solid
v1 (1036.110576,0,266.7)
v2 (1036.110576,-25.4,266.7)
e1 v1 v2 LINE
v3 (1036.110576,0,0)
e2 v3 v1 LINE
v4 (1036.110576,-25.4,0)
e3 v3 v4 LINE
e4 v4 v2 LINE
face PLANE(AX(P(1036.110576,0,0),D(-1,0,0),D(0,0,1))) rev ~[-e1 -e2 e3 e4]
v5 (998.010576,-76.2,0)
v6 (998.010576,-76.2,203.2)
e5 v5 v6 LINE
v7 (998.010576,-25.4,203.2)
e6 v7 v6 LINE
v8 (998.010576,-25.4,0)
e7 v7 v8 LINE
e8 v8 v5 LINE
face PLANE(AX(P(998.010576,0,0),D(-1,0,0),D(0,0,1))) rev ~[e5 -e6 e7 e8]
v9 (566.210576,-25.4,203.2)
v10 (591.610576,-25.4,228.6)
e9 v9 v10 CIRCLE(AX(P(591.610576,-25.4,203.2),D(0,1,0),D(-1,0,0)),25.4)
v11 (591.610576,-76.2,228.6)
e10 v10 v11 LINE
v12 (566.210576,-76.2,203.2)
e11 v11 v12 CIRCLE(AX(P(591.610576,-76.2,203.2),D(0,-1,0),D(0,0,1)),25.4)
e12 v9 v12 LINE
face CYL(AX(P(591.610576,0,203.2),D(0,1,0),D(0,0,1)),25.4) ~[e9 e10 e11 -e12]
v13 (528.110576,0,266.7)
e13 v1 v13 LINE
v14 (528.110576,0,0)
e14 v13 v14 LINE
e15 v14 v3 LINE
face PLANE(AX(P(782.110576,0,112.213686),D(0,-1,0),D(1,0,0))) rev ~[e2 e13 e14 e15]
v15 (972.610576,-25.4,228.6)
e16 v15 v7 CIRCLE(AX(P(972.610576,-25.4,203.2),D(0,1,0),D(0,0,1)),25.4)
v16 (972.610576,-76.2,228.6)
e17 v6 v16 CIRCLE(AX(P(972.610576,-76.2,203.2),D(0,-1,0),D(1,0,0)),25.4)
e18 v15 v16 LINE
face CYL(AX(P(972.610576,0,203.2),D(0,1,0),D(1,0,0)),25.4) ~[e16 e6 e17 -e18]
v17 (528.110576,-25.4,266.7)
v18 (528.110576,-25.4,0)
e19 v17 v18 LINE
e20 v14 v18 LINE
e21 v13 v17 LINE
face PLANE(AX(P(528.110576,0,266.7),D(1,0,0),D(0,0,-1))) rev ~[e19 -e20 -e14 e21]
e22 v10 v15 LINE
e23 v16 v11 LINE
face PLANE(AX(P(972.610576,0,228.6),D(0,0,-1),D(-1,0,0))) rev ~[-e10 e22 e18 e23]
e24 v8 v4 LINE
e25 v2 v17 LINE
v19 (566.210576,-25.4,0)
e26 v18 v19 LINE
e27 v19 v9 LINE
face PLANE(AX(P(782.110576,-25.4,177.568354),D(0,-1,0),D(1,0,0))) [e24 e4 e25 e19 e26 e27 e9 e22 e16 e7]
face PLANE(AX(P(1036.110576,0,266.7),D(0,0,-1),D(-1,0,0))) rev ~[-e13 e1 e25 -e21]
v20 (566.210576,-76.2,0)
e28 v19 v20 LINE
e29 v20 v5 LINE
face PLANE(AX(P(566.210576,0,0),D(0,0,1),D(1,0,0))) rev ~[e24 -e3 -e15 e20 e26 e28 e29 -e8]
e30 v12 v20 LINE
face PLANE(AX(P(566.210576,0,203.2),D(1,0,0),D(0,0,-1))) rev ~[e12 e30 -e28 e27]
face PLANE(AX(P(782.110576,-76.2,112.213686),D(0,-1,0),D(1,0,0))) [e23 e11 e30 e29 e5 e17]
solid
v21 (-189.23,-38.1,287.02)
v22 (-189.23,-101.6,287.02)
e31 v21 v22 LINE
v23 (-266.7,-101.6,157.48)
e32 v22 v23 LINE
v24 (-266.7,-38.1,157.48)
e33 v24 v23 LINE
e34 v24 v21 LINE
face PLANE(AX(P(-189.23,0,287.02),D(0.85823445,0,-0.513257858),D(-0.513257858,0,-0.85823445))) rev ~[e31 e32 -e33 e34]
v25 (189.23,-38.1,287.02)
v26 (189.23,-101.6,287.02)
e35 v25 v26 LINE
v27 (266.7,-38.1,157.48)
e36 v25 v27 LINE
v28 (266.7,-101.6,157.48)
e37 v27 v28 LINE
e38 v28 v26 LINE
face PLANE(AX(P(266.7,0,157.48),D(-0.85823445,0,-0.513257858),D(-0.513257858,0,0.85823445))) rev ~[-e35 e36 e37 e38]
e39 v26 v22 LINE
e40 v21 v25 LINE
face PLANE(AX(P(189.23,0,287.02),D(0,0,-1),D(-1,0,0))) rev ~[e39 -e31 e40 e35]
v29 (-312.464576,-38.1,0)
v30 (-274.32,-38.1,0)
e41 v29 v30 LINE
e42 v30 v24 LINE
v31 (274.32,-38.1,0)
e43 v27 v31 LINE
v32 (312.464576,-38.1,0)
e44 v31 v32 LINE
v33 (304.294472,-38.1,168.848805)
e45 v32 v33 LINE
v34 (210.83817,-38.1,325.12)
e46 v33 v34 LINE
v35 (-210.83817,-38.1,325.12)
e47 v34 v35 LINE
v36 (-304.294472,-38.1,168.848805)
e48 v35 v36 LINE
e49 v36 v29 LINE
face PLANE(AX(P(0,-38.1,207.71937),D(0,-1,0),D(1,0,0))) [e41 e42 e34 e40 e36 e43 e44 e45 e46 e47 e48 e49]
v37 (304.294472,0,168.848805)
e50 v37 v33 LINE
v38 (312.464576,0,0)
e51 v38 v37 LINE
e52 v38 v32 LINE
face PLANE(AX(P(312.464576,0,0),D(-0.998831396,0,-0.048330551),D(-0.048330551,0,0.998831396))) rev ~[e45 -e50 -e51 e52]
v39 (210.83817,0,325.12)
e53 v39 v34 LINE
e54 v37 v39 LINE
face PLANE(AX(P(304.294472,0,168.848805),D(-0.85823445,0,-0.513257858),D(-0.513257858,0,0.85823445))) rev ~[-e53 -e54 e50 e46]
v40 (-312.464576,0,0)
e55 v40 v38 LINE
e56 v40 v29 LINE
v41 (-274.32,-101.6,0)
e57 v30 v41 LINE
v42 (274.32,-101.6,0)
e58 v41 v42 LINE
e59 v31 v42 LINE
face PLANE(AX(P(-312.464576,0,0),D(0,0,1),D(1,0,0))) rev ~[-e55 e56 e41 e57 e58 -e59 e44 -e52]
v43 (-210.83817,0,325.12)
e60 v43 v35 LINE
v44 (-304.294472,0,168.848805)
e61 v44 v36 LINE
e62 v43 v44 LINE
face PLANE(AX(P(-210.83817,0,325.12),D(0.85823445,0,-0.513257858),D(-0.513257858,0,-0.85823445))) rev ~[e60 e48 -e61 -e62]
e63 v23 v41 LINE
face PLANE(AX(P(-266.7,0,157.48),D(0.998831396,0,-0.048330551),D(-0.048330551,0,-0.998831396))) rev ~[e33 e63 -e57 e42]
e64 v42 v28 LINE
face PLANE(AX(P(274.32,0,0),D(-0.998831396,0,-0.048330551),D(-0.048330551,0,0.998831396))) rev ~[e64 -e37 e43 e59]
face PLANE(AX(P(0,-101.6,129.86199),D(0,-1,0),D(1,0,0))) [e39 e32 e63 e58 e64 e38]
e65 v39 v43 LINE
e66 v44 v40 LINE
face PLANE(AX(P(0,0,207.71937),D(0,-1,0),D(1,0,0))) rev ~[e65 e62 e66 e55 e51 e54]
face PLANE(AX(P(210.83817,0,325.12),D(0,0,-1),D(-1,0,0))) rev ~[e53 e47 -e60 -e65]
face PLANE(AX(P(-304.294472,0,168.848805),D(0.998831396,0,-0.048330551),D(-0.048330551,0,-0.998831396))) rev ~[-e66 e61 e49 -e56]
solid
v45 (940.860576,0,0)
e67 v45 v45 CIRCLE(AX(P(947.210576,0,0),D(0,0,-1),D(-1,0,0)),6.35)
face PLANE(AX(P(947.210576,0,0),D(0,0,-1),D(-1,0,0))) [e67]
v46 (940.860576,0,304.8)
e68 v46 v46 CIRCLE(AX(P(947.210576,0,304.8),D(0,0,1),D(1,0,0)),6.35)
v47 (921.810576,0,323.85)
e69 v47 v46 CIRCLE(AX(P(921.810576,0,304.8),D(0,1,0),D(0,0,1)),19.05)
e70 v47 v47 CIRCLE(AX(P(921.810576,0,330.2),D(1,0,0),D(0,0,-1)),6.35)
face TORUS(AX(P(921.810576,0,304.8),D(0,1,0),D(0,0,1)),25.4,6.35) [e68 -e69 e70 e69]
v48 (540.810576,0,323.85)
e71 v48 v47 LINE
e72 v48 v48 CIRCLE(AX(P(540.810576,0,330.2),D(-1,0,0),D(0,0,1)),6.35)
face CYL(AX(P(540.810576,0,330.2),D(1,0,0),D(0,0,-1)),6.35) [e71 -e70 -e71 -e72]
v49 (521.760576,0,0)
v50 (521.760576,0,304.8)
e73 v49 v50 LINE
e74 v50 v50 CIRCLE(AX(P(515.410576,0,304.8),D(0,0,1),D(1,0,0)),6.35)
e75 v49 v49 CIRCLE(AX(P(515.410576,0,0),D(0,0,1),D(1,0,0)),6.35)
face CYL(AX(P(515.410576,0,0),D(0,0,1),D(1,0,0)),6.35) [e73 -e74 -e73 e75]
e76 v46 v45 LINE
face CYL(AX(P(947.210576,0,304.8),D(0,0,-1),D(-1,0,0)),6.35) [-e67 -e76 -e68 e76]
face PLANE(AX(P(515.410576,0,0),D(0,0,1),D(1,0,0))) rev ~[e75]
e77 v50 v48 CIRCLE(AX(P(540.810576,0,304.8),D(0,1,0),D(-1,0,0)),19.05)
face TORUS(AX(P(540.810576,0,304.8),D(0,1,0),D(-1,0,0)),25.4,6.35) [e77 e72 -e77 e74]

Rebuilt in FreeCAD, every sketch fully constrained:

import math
import FreeCAD as App
import Part
import Sketcher

V = App.Vector
Q = App.Units.Quantity

doc = App.newDocument("Part")
params = doc.addObject("Spreadsheet::Sheet", "Params")
for row, (alias, value) in enumerate([
    ("sketch1_width", "21.6 in"),
    ("sketch1_width2", "14.9 in"),
    ("pad1_length", "4 in"),
    ("sketch2_width", "14.9 in"),
    ("pad2_length", "1.5 in"),
    ("sketch3_radius", "1 in"),
    ("sketch3_width", "15 in"),
    ("sketch3_width2", "20 in"),
    ("sketch3_height", "8 in"),
    ("sketch3_height2", "10.5 in"),
    ("pad3_length", "1 in"),
    ("sketch4_radius", "1 in"),
    ("sketch4_width", "17 in"),
    ("sketch4_height", "8 in"),
    ("pad4_length", "3 in"),
    ("sketch5_diameter", "0.5 in"),
    ("sketch6_radius", "1 in"),
    ("sketch6_width", "15 in"),
    ("sketch6_height", "12 in"),
], start=1):
    params.set(f"A{row}", alias)
    params.set(f"B{row}", "=" + value)
    params.setAlias(f"B{row}", alias)

body = doc.addObject("PartDesign::Body", "Body")

sketch1 = body.newObject("Sketcher::SketchObject", "Sketch")
sketch1.AttachmentSupport = (doc.getObject("XZ_Plane"), [""])
sketch1.MapMode = "FlatFace"
sketch1.addGeometry(Part.LineSegment(V(-267, 157, 0), V(-274, 0, 0)), False)
sketch1.addGeometry(Part.LineSegment(V(-274, 0, 0), V(274, 0, 0)), False)
sketch1.addGeometry(Part.LineSegment(V(274, 0, 0), V(267, 157, 0)), False)
sketch1.addGeometry(Part.LineSegment(V(267, 157, 0), V(189, 287, 0)), False)
sketch1.addGeometry(Part.LineSegment(V(189, 287, 0), V(-189, 287, 0)), False)
sketch1.addGeometry(Part.LineSegment(V(-189, 287, 0), V(-267, 157, 0)), False)
sketch1.addConstraint(Sketcher.Constraint("Coincident", 0, 2, 1, 1))
sketch1.addConstraint(Sketcher.Constraint("Coincident", 1, 2, 2, 1))
sketch1.addConstraint(Sketcher.Constraint("Coincident", 2, 2, 3, 1))
sketch1.addConstraint(Sketcher.Constraint("Coincident", 3, 2, 4, 1))
sketch1.addConstraint(Sketcher.Constraint("Coincident", 4, 2, 5, 1))
sketch1.addConstraint(Sketcher.Constraint("Coincident", 5, 2, 0, 1))
sketch1.addConstraint(Sketcher.Constraint("Horizontal", 1))
sketch1.addConstraint(Sketcher.Constraint("Horizontal", 4))
sketch1.addConstraint(Sketcher.Constraint("Symmetric", 0, 2, 1, 2, -1, 1))
sketch1.addConstraint(Sketcher.Constraint("Symmetric", 2, 2, 5, 2, -2))
sketch1.addConstraint(Sketcher.Constraint("Equal", 3, 5))
sketch1.addConstraint(Sketcher.Constraint("DistanceX", 1, 1, 1, 2, Q("21.6 in")))
sketch1.addConstraint(Sketcher.Constraint("DistanceX", 4, 2, 4, 1, Q("14.9 in")))
sketch1.addConstraint(Sketcher.Constraint("DistanceX", 5, 2, 2, 2, Q("21 in")))
sketch1.addConstraint(Sketcher.Constraint("DistanceY", -1, 1, 2, 2, Q("6.2 in")))
sketch1.addConstraint(Sketcher.Constraint("DistanceY", -1, 1, 3, 2, Q("11.3 in")))
sketch1.setExpression("Constraints[11]", "Params.sketch1_width")
sketch1.setExpression("Constraints[12]", "Params.sketch1_width2")
pad1 = body.newObject("PartDesign::Pad", "Pad")
pad1.Profile = sketch1
pad1.setExpression("Length", "Params.pad1_length")

sketch2 = body.newObject("Sketcher::SketchObject", "Sketch001")
sketch2.AttachmentSupport = (doc.getObject("XZ_Plane"), [""])
sketch2.MapMode = "FlatFace"
sketch2.addGeometry(Part.LineSegment(V(-312, 0, 0), V(-274, 0, 0)), False)
sketch2.addGeometry(Part.LineSegment(V(-274, 0, 0), V(-267, 157, 0)), False)
sketch2.addGeometry(Part.LineSegment(V(-267, 157, 0), V(-189, 287, 0)), False)
sketch2.addGeometry(Part.LineSegment(V(-189, 287, 0), V(189, 287, 0)), False)
sketch2.addGeometry(Part.LineSegment(V(189, 287, 0), V(267, 157, 0)), False)
sketch2.addGeometry(Part.LineSegment(V(267, 157, 0), V(274, 0, 0)), False)
sketch2.addGeometry(Part.LineSegment(V(274, 0, 0), V(312, 0, 0)), False)
sketch2.addGeometry(Part.LineSegment(V(312, 0, 0), V(304, 169, 0)), False)
sketch2.addGeometry(Part.LineSegment(V(304, 169, 0), V(211, 325, 0)), False)
sketch2.addGeometry(Part.LineSegment(V(211, 325, 0), V(-211, 325, 0)), False)
sketch2.addGeometry(Part.LineSegment(V(-211, 325, 0), V(-304, 169, 0)), False)
sketch2.addGeometry(Part.LineSegment(V(-304, 169, 0), V(-312, 0, 0)), False)
sketch2.addConstraint(Sketcher.Constraint("Coincident", 0, 2, 1, 1))
sketch2.addConstraint(Sketcher.Constraint("Coincident", 1, 2, 2, 1))
sketch2.addConstraint(Sketcher.Constraint("Coincident", 2, 2, 3, 1))
sketch2.addConstraint(Sketcher.Constraint("Coincident", 3, 2, 4, 1))
sketch2.addConstraint(Sketcher.Constraint("Coincident", 4, 2, 5, 1))
sketch2.addConstraint(Sketcher.Constraint("Coincident", 5, 2, 6, 1))
sketch2.addConstraint(Sketcher.Constraint("Coincident", 6, 2, 7, 1))
sketch2.addConstraint(Sketcher.Constraint("Coincident", 7, 2, 8, 1))
sketch2.addConstraint(Sketcher.Constraint("Coincident", 8, 2, 9, 1))
sketch2.addConstraint(Sketcher.Constraint("Coincident", 9, 2, 10, 1))
sketch2.addConstraint(Sketcher.Constraint("Coincident", 10, 2, 11, 1))
sketch2.addConstraint(Sketcher.Constraint("Coincident", 11, 2, 0, 1))
sketch2.addConstraint(Sketcher.Constraint("Horizontal", 0))
sketch2.addConstraint(Sketcher.Constraint("Horizontal", 3))
sketch2.addConstraint(Sketcher.Constraint("Horizontal", 6))
sketch2.addConstraint(Sketcher.Constraint("Horizontal", 9))
sketch2.addConstraint(Sketcher.Constraint("Symmetric", 0, 2, 5, 2, -1, 1))
sketch2.addConstraint(Sketcher.Constraint("Symmetric", 1, 2, 4, 2, -2))
sketch2.addConstraint(Sketcher.Constraint("Symmetric", 7, 2, 10, 2, -2))
sketch2.addConstraint(Sketcher.Constraint("Symmetric", 6, 2, 11, 2, -2))
sketch2.addConstraint(Sketcher.Constraint("Parallel", 5, 7))
sketch2.addConstraint(Sketcher.Constraint("Parallel", 4, 8))
sketch2.addConstraint(Sketcher.Constraint("Parallel", 2, 10))
sketch2.addConstraint(Sketcher.Constraint("Equal", 2, 4))
sketch2.addConstraint(Sketcher.Constraint("DistanceX", 3, 1, 3, 2, Q("14.9 in")))
sketch2.addConstraint(Sketcher.Constraint("DistanceX", 1, 2, 4, 2, Q("21 in")))
sketch2.addConstraint(Sketcher.Constraint("DistanceX", 0, 2, -1, 1, Q("10.8 in")))
sketch2.addConstraint(Sketcher.Constraint("DistanceY", -1, 1, 1, 2, Q("6.2 in")))
sketch2.addConstraint(Sketcher.Constraint("DistanceY", -1, 1, 2, 2, Q("11.3 in")))
sketch2.addConstraint(Sketcher.Constraint("DistanceY", -1, 1, 8, 2, Q("12.8 in")))
sketch2.addConstraint(Sketcher.Constraint("DistanceX", 9, 2, 9, 1, 421.676339))
sketch2.addConstraint(Sketcher.Constraint("DistanceX", 0, 1, 0, 2, 38.144576))
sketch2.setExpression("Constraints[24]", "Params.sketch2_width")
pad2 = body.newObject("PartDesign::Pad", "Pad001")
pad2.Profile = sketch2
pad2.setExpression("Length", "Params.pad2_length")
body2 = doc.addObject("PartDesign::Body", "Body001")

sketch3 = body2.newObject("Sketcher::SketchObject", "Sketch002")
sketch3.AttachmentSupport = (doc.getObject("XZ_Plane001"), [""])
sketch3.MapMode = "FlatFace"
sketch3.addGeometry(Part.LineSegment(V(528, 0, 0), V(566, 0, 0)), False)
sketch3.addGeometry(Part.LineSegment(V(566, 0, 0), V(566, 203, 0)), False)
sketch3.addGeometry(Part.ArcOfCircle(Part.Circle(V(592, 203, 0), V(0, 0, 1), 25), math.radians(90), math.radians(180)), False)
sketch3.addGeometry(Part.LineSegment(V(592, 229, 0), V(973, 229, 0)), False)
sketch3.addGeometry(Part.ArcOfCircle(Part.Circle(V(973, 203, 0), V(0, 0, 1), 25), math.radians(0), math.radians(90)), False)
sketch3.addGeometry(Part.LineSegment(V(998, 203, 0), V(998, 0, 0)), False)
sketch3.addGeometry(Part.LineSegment(V(998, 0, 0), V(1036, 0, 0)), False)
sketch3.addGeometry(Part.LineSegment(V(1036, 0, 0), V(1036, 267, 0)), False)
sketch3.addGeometry(Part.LineSegment(V(1036, 267, 0), V(528, 267, 0)), False)
sketch3.addGeometry(Part.LineSegment(V(528, 267, 0), V(528, 0, 0)), False)
sketch3.addConstraint(Sketcher.Constraint("Coincident", 0, 2, 1, 1))
sketch3.addConstraint(Sketcher.Constraint("Tangent", 1, 2, 2, 2))
sketch3.addConstraint(Sketcher.Constraint("Tangent", 2, 1, 3, 1))
sketch3.addConstraint(Sketcher.Constraint("Tangent", 3, 2, 4, 2))
sketch3.addConstraint(Sketcher.Constraint("Tangent", 4, 1, 5, 1))
sketch3.addConstraint(Sketcher.Constraint("Coincident", 5, 2, 6, 1))
sketch3.addConstraint(Sketcher.Constraint("Coincident", 6, 2, 7, 1))
sketch3.addConstraint(Sketcher.Constraint("Coincident", 7, 2, 8, 1))
sketch3.addConstraint(Sketcher.Constraint("Coincident", 8, 2, 9, 1))
sketch3.addConstraint(Sketcher.Constraint("Coincident", 9, 2, 0, 1))
sketch3.addConstraint(Sketcher.Constraint("Horizontal", 0))
sketch3.addConstraint(Sketcher.Constraint("Vertical", 1))
sketch3.addConstraint(Sketcher.Constraint("Horizontal", 3))
sketch3.addConstraint(Sketcher.Constraint("Vertical", 5))
sketch3.addConstraint(Sketcher.Constraint("Horizontal", 6))
sketch3.addConstraint(Sketcher.Constraint("Vertical", 7))
sketch3.addConstraint(Sketcher.Constraint("Horizontal", 8))
sketch3.addConstraint(Sketcher.Constraint("Vertical", 9))
sketch3.addConstraint(Sketcher.Constraint("Equal", 2, 4))
sketch3.addConstraint(Sketcher.Constraint("PointOnObject", 0, 2, -1))
sketch3.addConstraint(Sketcher.Constraint("PointOnObject", 5, 2, -1))
sketch3.addConstraint(Sketcher.Constraint("Equal", 0, 6))
sketch3.addConstraint(Sketcher.Constraint("Radius", 2, Q("1 in")))
sketch3.addConstraint(Sketcher.Constraint("DistanceX", 3, 1, 3, 2, Q("15 in")))
sketch3.addConstraint(Sketcher.Constraint("DistanceX", 8, 2, 8, 1, Q("20 in")))
sketch3.addConstraint(Sketcher.Constraint("DistanceY", 1, 1, 1, 2, Q("8 in")))
sketch3.addConstraint(Sketcher.Constraint("DistanceY", 7, 1, 7, 2, Q("10.5 in")))
sketch3.addConstraint(Sketcher.Constraint("DistanceX", -1, 1, 2, 3, 591.610576))
sketch3.setExpression("Constraints[22]", "Params.sketch3_radius")
sketch3.setExpression("Constraints[23]", "Params.sketch3_width")
sketch3.setExpression("Constraints[24]", "Params.sketch3_width2")
sketch3.setExpression("Constraints[25]", "Params.sketch3_height")
sketch3.setExpression("Constraints[26]", "Params.sketch3_height2")
pad3 = body2.newObject("PartDesign::Pad", "Pad002")
pad3.Profile = sketch3
pad3.setExpression("Length", "Params.pad3_length")

sketch4 = body2.newObject("Sketcher::SketchObject", "Sketch003")
sketch4.AttachmentSupport = (doc.getObject("XZ_Plane001"), [""])
sketch4.MapMode = "FlatFace"
sketch4.addGeometry(Part.LineSegment(V(566, 203, 0), V(566, 0, 0)), False)
sketch4.addGeometry(Part.LineSegment(V(566, 0, 0), V(998, 0, 0)), False)
sketch4.addGeometry(Part.LineSegment(V(998, 0, 0), V(998, 203, 0)), False)
sketch4.addGeometry(Part.ArcOfCircle(Part.Circle(V(973, 203, 0), V(0, 0, 1), 25), math.radians(0), math.radians(90)), False)
sketch4.addGeometry(Part.LineSegment(V(973, 229, 0), V(592, 229, 0)), False)
sketch4.addGeometry(Part.ArcOfCircle(Part.Circle(V(592, 203, 0), V(0, 0, 1), 25), math.radians(90), math.radians(180)), False)
sketch4.addConstraint(Sketcher.Constraint("Coincident", 0, 2, 1, 1))
sketch4.addConstraint(Sketcher.Constraint("Coincident", 1, 2, 2, 1))
sketch4.addConstraint(Sketcher.Constraint("Tangent", 2, 2, 3, 1))
sketch4.addConstraint(Sketcher.Constraint("Tangent", 3, 2, 4, 1))
sketch4.addConstraint(Sketcher.Constraint("Tangent", 4, 2, 5, 1))
sketch4.addConstraint(Sketcher.Constraint("Tangent", 5, 2, 0, 1))
sketch4.addConstraint(Sketcher.Constraint("Vertical", 0))
sketch4.addConstraint(Sketcher.Constraint("Horizontal", 1))
sketch4.addConstraint(Sketcher.Constraint("Vertical", 2))
sketch4.addConstraint(Sketcher.Constraint("Horizontal", 4))
sketch4.addConstraint(Sketcher.Constraint("Equal", 3, 5))
sketch4.addConstraint(Sketcher.Constraint("PointOnObject", 0, 2, -1))
sketch4.addConstraint(Sketcher.Constraint("Radius", 3, Q("1 in")))
sketch4.addConstraint(Sketcher.Constraint("DistanceX", 1, 1, 1, 2, Q("17 in")))
sketch4.addConstraint(Sketcher.Constraint("DistanceY", 0, 2, 0, 1, Q("8 in")))
sketch4.addConstraint(Sketcher.Constraint("DistanceX", -1, 1, 3, 3, 972.610576))
sketch4.setExpression("Constraints[12]", "Params.sketch4_radius")
sketch4.setExpression("Constraints[13]", "Params.sketch4_width")
sketch4.setExpression("Constraints[14]", "Params.sketch4_height")
pad4 = body2.newObject("PartDesign::Pad", "Pad003")
pad4.Profile = sketch4
pad4.setExpression("Length", "Params.pad4_length")
body3 = doc.addObject("PartDesign::Body", "Body002")

sketch5 = body3.newObject("Sketcher::SketchObject", "Sketch004")
sketch5.AttachmentSupport = (doc.getObject("XY_Plane002"), [""])
sketch5.MapMode = "FlatFace"
sketch5.addGeometry(Part.Circle(V(515, 0, 0), V(0, 0, 1), 6), False)
sketch5.addConstraint(Sketcher.Constraint("PointOnObject", 0, 3, -1))
sketch5.addConstraint(Sketcher.Constraint("Diameter", 0, Q("0.5 in")))
sketch5.addConstraint(Sketcher.Constraint("DistanceX", -1, 1, 0, 3, 515.410576))
sketch5.setExpression("Constraints[1]", "Params.sketch5_diameter")

sketch6 = body3.newObject("Sketcher::SketchObject", "Sketch005")
sketch6.AttachmentSupport = (doc.getObject("XZ_Plane002"), [""])
sketch6.MapMode = "FlatFace"
sketch6.addGeometry(Part.LineSegment(V(515, 0, 0), V(515, 305, 0)), False)
sketch6.addGeometry(Part.ArcOfCircle(Part.Circle(V(541, 305, 0), V(0, 0, 1), 25), math.radians(90), math.radians(180)), False)
sketch6.addGeometry(Part.LineSegment(V(541, 330, 0), V(922, 330, 0)), False)
sketch6.addGeometry(Part.ArcOfCircle(Part.Circle(V(922, 305, 0), V(0, 0, 1), 25), math.radians(0), math.radians(90)), False)
sketch6.addGeometry(Part.LineSegment(V(947, 305, 0), V(947, 0, 0)), False)
sketch6.addConstraint(Sketcher.Constraint("Tangent", 0, 2, 1, 2))
sketch6.addConstraint(Sketcher.Constraint("Tangent", 1, 1, 2, 1))
sketch6.addConstraint(Sketcher.Constraint("Tangent", 2, 2, 3, 2))
sketch6.addConstraint(Sketcher.Constraint("Tangent", 3, 1, 4, 1))
sketch6.addConstraint(Sketcher.Constraint("Vertical", 0))
sketch6.addConstraint(Sketcher.Constraint("Horizontal", 2))
sketch6.addConstraint(Sketcher.Constraint("Vertical", 4))
sketch6.addConstraint(Sketcher.Constraint("Equal", 1, 3))
sketch6.addConstraint(Sketcher.Constraint("PointOnObject", 0, 1, -1))
sketch6.addConstraint(Sketcher.Constraint("PointOnObject", 4, 2, -1))
sketch6.addConstraint(Sketcher.Constraint("Radius", 1, Q("1 in")))
sketch6.addConstraint(Sketcher.Constraint("DistanceX", 2, 1, 2, 2, Q("15 in")))
sketch6.addConstraint(Sketcher.Constraint("DistanceY", 0, 1, 0, 2, Q("12 in")))
sketch6.addConstraint(Sketcher.Constraint("DistanceX", -1, 1, 1, 3, 540.810576))
sketch6.setExpression("Constraints[10]", "Params.sketch6_radius")
sketch6.setExpression("Constraints[11]", "Params.sketch6_width")
sketch6.setExpression("Constraints[12]", "Params.sketch6_height")
doc.recompute()

additivepipe = body3.newObject("PartDesign::AdditivePipe", "AdditivePipe")
additivepipe.Profile = sketch5
additivepipe.Spine = (sketch6, ["Edge1", "Edge2", "Edge3", "Edge4", "Edge5"])

doc.recompute()
